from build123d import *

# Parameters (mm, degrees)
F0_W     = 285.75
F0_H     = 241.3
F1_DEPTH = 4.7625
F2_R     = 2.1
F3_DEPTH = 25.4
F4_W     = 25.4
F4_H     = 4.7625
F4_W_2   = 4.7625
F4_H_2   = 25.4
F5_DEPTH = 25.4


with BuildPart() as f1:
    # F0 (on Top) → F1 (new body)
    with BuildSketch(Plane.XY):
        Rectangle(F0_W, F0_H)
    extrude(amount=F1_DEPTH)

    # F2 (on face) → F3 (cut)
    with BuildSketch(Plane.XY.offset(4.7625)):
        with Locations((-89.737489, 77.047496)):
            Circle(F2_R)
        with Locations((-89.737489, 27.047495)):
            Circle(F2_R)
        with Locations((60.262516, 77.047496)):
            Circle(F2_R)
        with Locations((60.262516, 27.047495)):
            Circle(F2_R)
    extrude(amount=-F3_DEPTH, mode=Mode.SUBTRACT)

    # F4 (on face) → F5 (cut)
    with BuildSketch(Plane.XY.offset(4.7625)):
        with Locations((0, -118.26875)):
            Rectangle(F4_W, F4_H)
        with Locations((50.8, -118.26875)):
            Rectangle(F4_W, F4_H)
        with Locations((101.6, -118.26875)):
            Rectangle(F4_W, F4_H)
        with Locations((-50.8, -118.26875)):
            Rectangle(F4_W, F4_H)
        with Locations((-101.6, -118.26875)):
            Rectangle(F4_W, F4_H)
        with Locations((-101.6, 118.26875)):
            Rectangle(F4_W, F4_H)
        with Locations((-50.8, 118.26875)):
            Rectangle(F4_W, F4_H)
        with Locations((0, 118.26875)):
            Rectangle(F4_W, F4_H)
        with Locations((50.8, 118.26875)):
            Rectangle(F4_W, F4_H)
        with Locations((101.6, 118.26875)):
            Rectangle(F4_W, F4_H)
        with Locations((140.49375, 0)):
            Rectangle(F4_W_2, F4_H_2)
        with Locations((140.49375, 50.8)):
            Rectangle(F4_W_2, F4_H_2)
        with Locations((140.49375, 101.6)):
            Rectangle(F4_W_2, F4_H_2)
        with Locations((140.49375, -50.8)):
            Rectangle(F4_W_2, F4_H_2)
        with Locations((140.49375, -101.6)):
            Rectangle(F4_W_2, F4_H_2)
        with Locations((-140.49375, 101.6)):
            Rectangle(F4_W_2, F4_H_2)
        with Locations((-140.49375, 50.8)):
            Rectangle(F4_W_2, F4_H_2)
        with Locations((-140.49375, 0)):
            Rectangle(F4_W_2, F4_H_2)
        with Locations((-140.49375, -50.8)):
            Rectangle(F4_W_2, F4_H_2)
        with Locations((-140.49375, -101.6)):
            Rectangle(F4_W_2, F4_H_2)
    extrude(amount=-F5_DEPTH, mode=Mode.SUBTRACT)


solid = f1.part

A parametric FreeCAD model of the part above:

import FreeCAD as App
import Part
import Sketcher

V = App.Vector
Q = App.Units.Quantity


def add_polygon(sketch, points):
    """Adds a closed chain of lines whose ends are joined by coincident constraints."""
    first, n = sketch.GeometryCount, len(points)
    for a, b in zip(points, points[1:] + points[:1]):
        sketch.addGeometry(Part.LineSegment(App.Vector(*a, 0), App.Vector(*b, 0)), False)
    for i in range(n):
        sketch.addConstraint(Sketcher.Constraint("Coincident", first + i, 2, first + (i + 1) % n, 1))

doc = App.newDocument("Part")
body = doc.addObject("PartDesign::Body", "Body")

# Sketch on XY plane
sketch1 = body.newObject("Sketcher::SketchObject", "Sketch")
sketch1.AttachmentSupport = (doc.getObject("XY_Plane"), [""])
sketch1.MapMode = "FlatFace"
add_polygon(sketch1, [(-142.875, 120.65), (-142.875, -120.65), (142.875, -120.65), (142.875, 120.65)])  # lines 0-3
sketch1.addConstraint([
    Sketcher.Constraint("Vertical", 0),
    Sketcher.Constraint("Horizontal", 1),
    Sketcher.Constraint("Vertical", 2),
    Sketcher.Constraint("Horizontal", 3),
    Sketcher.Constraint("Symmetric", 0, 2, 2, 2, -1, 1),
    Sketcher.Constraint("DistanceY", 0, 2, 0, 1, Q("9.5 in")),
    Sketcher.Constraint("DistanceX", 1, 1, 1, 2, Q("11.25 in")),
])
pad1 = body.newObject("PartDesign::Pad", "Pad")
pad1.Profile = sketch1
pad1.Length = Q("0.1875 in")

# Sketch on XY plane
sketch2 = body.newObject("Sketcher::SketchObject", "Sketch001")
sketch2.AttachmentSupport = (doc.getObject("XY_Plane"), [""])
sketch2.MapMode = "FlatFace"
sketch2.AttachmentOffset = App.Placement(V(0, 0, 0.1875 * 25.4), App.Rotation())
sketch2.addGeometry([
    Part.Circle(V(-89.737489, 77.047496, 0), V(0, 0, 1), 2.1),
    Part.Circle(V(-89.737489, 27.047495, 0), V(0, 0, 1), 2.1),
    Part.Circle(V(60.262516, 77.047496, 0), V(0, 0, 1), 2.1),
    Part.Circle(V(60.262516, 27.047495, 0), V(0, 0, 1), 2.1),
], False)
sketch2.addConstraint([
    Sketcher.Constraint("Equal", 0, 1),
    Sketcher.Constraint("Equal", 1, 2),
    Sketcher.Constraint("Equal", 2, 3),
    Sketcher.Constraint("Horizontal", 0, 3, 2, 3),
    Sketcher.Constraint("Horizontal", 1, 3, 3, 3),
    Sketcher.Constraint("Vertical", 0, 3, 1, 3),
    Sketcher.Constraint("Vertical", 2, 3, 3, 3),
    Sketcher.Constraint("Diameter", 0, 4.2),
    Sketcher.Constraint("DistanceY", 1, 3, 0, 3, 50.000001),
    Sketcher.Constraint("DistanceX", 0, 3, -1, 1, 89.737489),
    Sketcher.Constraint("DistanceY", -1, 1, 0, 3, 77.047496),
    Sketcher.Constraint("DistanceX", -1, 1, 2, 3, 60.262516),
])
pocket1 = body.newObject("PartDesign::Pocket", "Pocket")
pocket1.Profile = sketch2
pocket1.Length = Q("1 in")

# Sketch on XY plane
sketch3 = body.newObject("Sketcher::SketchObject", "Sketch002")
sketch3.AttachmentSupport = (doc.getObject("XY_Plane"), [""])
sketch3.MapMode = "FlatFace"
sketch3.AttachmentOffset = App.Placement(V(0, 0, 0.1875 * 25.4), App.Rotation())
add_polygon(sketch3, [(-12.7, -115.8875), (-12.7, -120.65), (12.7, -120.65), (12.7, -115.8875)])  # lines 0-3
add_polygon(sketch3, [(38.1, -115.8875), (38.1, -120.65), (63.5, -120.65), (63.5, -115.8875)])  # lines 4-7
add_polygon(sketch3, [(88.9, -115.8875), (88.9, -120.65), (114.3, -120.65), (114.3, -115.8875)])  # lines 8-11
add_polygon(sketch3, [(-63.5, -115.8875), (-63.5, -120.65), (-38.1, -120.65), (-38.1, -115.8875)])  # lines 12-15
add_polygon(sketch3, [(-114.3, -115.8875), (-114.3, -120.65), (-88.9, -120.65), (-88.9, -115.8875)])  # lines 16-19
add_polygon(sketch3, [(-114.3, 120.65), (-114.3, 115.8875), (-88.9, 115.8875), (-88.9, 120.65)])  # lines 20-23
add_polygon(sketch3, [(-63.5, 120.65), (-63.5, 115.8875), (-38.1, 115.8875), (-38.1, 120.65)])  # lines 24-27
add_polygon(sketch3, [(-12.7, 120.65), (-12.7, 115.8875), (12.7, 115.8875), (12.7, 120.65)])  # lines 28-31
add_polygon(sketch3, [(38.1, 120.65), (38.1, 115.8875), (63.5, 115.8875), (63.5, 120.65)])  # lines 32-35
add_polygon(sketch3, [(88.9, 120.65), (88.9, 115.8875), (114.3, 115.8875), (114.3, 120.65)])  # lines 36-39
add_polygon(sketch3, [(138.1125, 12.7), (138.1125, -12.7), (142.875, -12.7), (142.875, 12.7)])  # lines 40-43
add_polygon(sketch3, [(138.1125, 63.5), (138.1125, 38.1), (142.875, 38.1), (142.875, 63.5)])  # lines 44-47
add_polygon(sketch3, [(138.1125, 114.3), (138.1125, 88.9), (142.875, 88.9), (142.875, 114.3)])  # lines 48-51
add_polygon(sketch3, [(138.1125, -38.1), (138.1125, -63.5), (142.875, -63.5), (142.875, -38.1)])  # lines 52-55
add_polygon(sketch3, [(138.1125, -88.9), (138.1125, -114.3), (142.875, -114.3), (142.875, -88.9)])  # lines 56-59
add_polygon(sketch3, [(-142.875, 114.3), (-142.875, 88.9), (-138.1125, 88.9), (-138.1125, 114.3)])  # lines 60-63
add_polygon(sketch3, [(-142.875, 63.5), (-142.875, 38.1), (-138.1125, 38.1), (-138.1125, 63.5)])  # lines 64-67
add_polygon(sketch3, [(-142.875, 12.7), (-142.875, -12.7), (-138.1125, -12.7), (-138.1125, 12.7)])  # lines 68-71
add_polygon(sketch3, [(-142.875, -38.1), (-142.875, -63.5), (-138.1125, -63.5), (-138.1125, -38.1)])  # lines 72-75
add_polygon(sketch3, [(-142.875, -88.9), (-142.875, -114.3), (-138.1125, -114.3), (-138.1125, -88.9)])  # lines 76-79
sketch3.addConstraint([
    Sketcher.Constraint("Vertical", 0),
    Sketcher.Constraint("Horizontal", 1),
    Sketcher.Constraint("Vertical", 2),
    Sketcher.Constraint("Horizontal", 3),
    Sketcher.Constraint("Vertical", 4),
    Sketcher.Constraint("Horizontal", 5),
    Sketcher.Constraint("Vertical", 6),
    Sketcher.Constraint("Horizontal", 7),
    Sketcher.Constraint("Vertical", 8),
    Sketcher.Constraint("Horizontal", 9),
    Sketcher.Constraint("Vertical", 10),
    Sketcher.Constraint("Horizontal", 11),
    Sketcher.Constraint("Vertical", 12),
    Sketcher.Constraint("Horizontal", 13),
    Sketcher.Constraint("Vertical", 14),
    Sketcher.Constraint("Horizontal", 15),
    Sketcher.Constraint("Vertical", 16),
    Sketcher.Constraint("Horizontal", 17),
    Sketcher.Constraint("Vertical", 18),
    Sketcher.Constraint("Horizontal", 19),
    Sketcher.Constraint("Vertical", 20),
    Sketcher.Constraint("Horizontal", 21),
    Sketcher.Constraint("Vertical", 22),
    Sketcher.Constraint("Horizontal", 23),
    Sketcher.Constraint("Vertical", 24),
    Sketcher.Constraint("Horizontal", 25),
    Sketcher.Constraint("Vertical", 26),
    Sketcher.Constraint("Horizontal", 27),
    Sketcher.Constraint("Vertical", 28),
    Sketcher.Constraint("Horizontal", 29),
    Sketcher.Constraint("Vertical", 30),
    Sketcher.Constraint("Horizontal", 31),
    Sketcher.Constraint("Vertical", 32),
    Sketcher.Constraint("Horizontal", 33),
    Sketcher.Constraint("Vertical", 34),
    Sketcher.Constraint("Horizontal", 35),
    Sketcher.Constraint("Vertical", 36),
    Sketcher.Constraint("Horizontal", 37),
    Sketcher.Constraint("Vertical", 38),
    Sketcher.Constraint("Horizontal", 39),
    Sketcher.Constraint("Vertical", 40),
    Sketcher.Constraint("Horizontal", 41),
    Sketcher.Constraint("Vertical", 42),
    Sketcher.Constraint("Horizontal", 43),
    Sketcher.Constraint("Vertical", 44),
    Sketcher.Constraint("Horizontal", 45),
    Sketcher.Constraint("Vertical", 46),
    Sketcher.Constraint("Horizontal", 47),
    Sketcher.Constraint("Vertical", 48),
    Sketcher.Constraint("Horizontal", 49),
    Sketcher.Constraint("Vertical", 50),
    Sketcher.Constraint("Horizontal", 51),
    Sketcher.Constraint("Vertical", 52),
    Sketcher.Constraint("Horizontal", 53),
    Sketcher.Constraint("Vertical", 54),
    Sketcher.Constraint("Horizontal", 55),
    Sketcher.Constraint("Vertical", 56),
    Sketcher.Constraint("Horizontal", 57),
    Sketcher.Constraint("Vertical", 58),
    Sketcher.Constraint("Horizontal", 59),
    Sketcher.Constraint("Vertical", 60),
    Sketcher.Constraint("Horizontal", 61),
    Sketcher.Constraint("Vertical", 62),
    Sketcher.Constraint("Horizontal", 63),
    Sketcher.Constraint("Vertical", 64),
    Sketcher.Constraint("Horizontal", 65),
    Sketcher.Constraint("Vertical", 66),
    Sketcher.Constraint("Horizontal", 67),
    Sketcher.Constraint("Vertical", 68),
    Sketcher.Constraint("Horizontal", 69),
    Sketcher.Constraint("Vertical", 70),
    Sketcher.Constraint("Horizontal", 71),
    Sketcher.Constraint("Vertical", 72),
    Sketcher.Constraint("Horizontal", 73),
    Sketcher.Constraint("Vertical", 74),
    Sketcher.Constraint("Horizontal", 75),
    Sketcher.Constraint("Vertical", 76),
    Sketcher.Constraint("Horizontal", 77),
    Sketcher.Constraint("Vertical", 78),
    Sketcher.Constraint("Horizontal", 79),
    Sketcher.Constraint("Symmetric", 10, 2, 20, 2, -1, 1),
    Sketcher.Constraint("Symmetric", 8, 2, 22, 2, -1, 1),
    Sketcher.Constraint("Symmetric", 6, 2, 24, 2, -1, 1),
    Sketcher.Constraint("Symmetric", 4, 2, 26, 2, -1, 1),
    Sketcher.Constraint("Symmetric", 2, 2, 28, 2, -1, 1),
    Sketcher.Constraint("Symmetric", 0, 2, 30, 2, -1, 1),
    Sketcher.Constraint("Symmetric", 14, 2, 32, 2, -1, 1),
    Sketcher.Constraint("Symmetric", 12, 2, 34, 2, -1, 1),
    Sketcher.Constraint("Symmetric", 18, 2, 36, 2, -1, 1),
    Sketcher.Constraint("Symmetric", 16, 2, 38, 2, -1, 1),
    Sketcher.Constraint("Symmetric", 58, 2, 60, 2, -1, 1),
    Sketcher.Constraint("Symmetric", 56, 2, 62, 2, -1, 1),
    Sketcher.Constraint("Symmetric", 54, 2, 64, 2, -1, 1),
    Sketcher.Constraint("Symmetric", 52, 2, 66, 2, -1, 1),
    Sketcher.Constraint("Symmetric", 42, 2, 68, 2, -1, 1),
    Sketcher.Constraint("Symmetric", 40, 2, 70, 2, -1, 1),
    Sketcher.Constraint("Symmetric", 46, 2, 72, 2, -1, 1),
    Sketcher.Constraint("Symmetric", 44, 2, 74, 2, -1, 1),
    Sketcher.Constraint("Symmetric", 50, 2, 76, 2, -1, 1),
    Sketcher.Constraint("Symmetric", 48, 2, 78, 2, -1, 1),
    Sketcher.Constraint("Symmetric", 5, 2, 12, 2, -2),
    Sketcher.Constraint("Symmetric", 7, 2, 14, 2, -2),
    Sketcher.Constraint("Symmetric", 9, 2, 16, 2, -2),
    Sketcher.Constraint("Symmetric", 11, 2, 18, 2, -2),
    Sketcher.Constraint("Symmetric", 49, 2, 60, 2, -2),
    Sketcher.Constraint("Symmetric", 51, 2, 62, 2, -2),
    Sketcher.Constraint("Symmetric", 45, 2, 64, 2, -2),
    Sketcher.Constraint("Symmetric", 47, 2, 66, 2, -2),
    Sketcher.Constraint("Horizontal", 1, 2, 4, 2),
    Sketcher.Constraint("Horizontal", 3, 2, 6, 2),
    Sketcher.Constraint("Horizontal", 5, 2, 8, 2),
    Sketcher.Constraint("Horizontal", 7, 2, 10, 2),
    Sketcher.Constraint("Horizontal", 41, 2, 68, 2),
    Sketcher.Constraint("Vertical", 3, 2, 28, 2),
    Sketcher.Constraint("Vertical", 43, 2, 44, 2),
    Sketcher.Constraint("Vertical", 42, 2, 45, 2),
    Sketcher.Constraint("Vertical", 47, 2, 48, 2),
    Sketcher.Constraint("Vertical", 46, 2, 49, 2),
    Sketcher.Constraint("Equal", 3, 5),
    Sketcher.Constraint("Equal", 7, 9),
    Sketcher.Constraint("Equal", 79, 0),
    Sketcher.Constraint("Equal", 39, 40),
    Sketcher.Constraint("Equal", 42, 44),
    Sketcher.Constraint("Equal", 46, 48),
    Sketcher.Constraint("DistanceX", 1, 1, 1, 2, Q("1 in")),
    Sketcher.Constraint("DistanceX", -1, 1, 4, 2, Q("1.5 in")),
    Sketcher.Constraint("DistanceX", -1, 1, 8, 2, Q("3.5 in")),
    Sketcher.Constraint("DistanceY", -1, 1, 44, 2, Q("1.5 in")),
    Sketcher.Constraint("DistanceY", -1, 1, 48, 2, Q("3.5 in")),
    Sketcher.Constraint("DistanceX", 41, 1, 41, 2, Q("0.1875 in")),
    Sketcher.Constraint("DistanceY", 0, 2, -1, 1, Q("4.75 in")),
    Sketcher.Constraint("DistanceX", -1, 1, 40, 2, Q("5.4375 in")),
])
pocket2 = body.newObject("PartDesign::Pocket", "Pocket001")
pocket2.Profile = sketch3
pocket2.Length = Q("1 in")

doc.recompute()
